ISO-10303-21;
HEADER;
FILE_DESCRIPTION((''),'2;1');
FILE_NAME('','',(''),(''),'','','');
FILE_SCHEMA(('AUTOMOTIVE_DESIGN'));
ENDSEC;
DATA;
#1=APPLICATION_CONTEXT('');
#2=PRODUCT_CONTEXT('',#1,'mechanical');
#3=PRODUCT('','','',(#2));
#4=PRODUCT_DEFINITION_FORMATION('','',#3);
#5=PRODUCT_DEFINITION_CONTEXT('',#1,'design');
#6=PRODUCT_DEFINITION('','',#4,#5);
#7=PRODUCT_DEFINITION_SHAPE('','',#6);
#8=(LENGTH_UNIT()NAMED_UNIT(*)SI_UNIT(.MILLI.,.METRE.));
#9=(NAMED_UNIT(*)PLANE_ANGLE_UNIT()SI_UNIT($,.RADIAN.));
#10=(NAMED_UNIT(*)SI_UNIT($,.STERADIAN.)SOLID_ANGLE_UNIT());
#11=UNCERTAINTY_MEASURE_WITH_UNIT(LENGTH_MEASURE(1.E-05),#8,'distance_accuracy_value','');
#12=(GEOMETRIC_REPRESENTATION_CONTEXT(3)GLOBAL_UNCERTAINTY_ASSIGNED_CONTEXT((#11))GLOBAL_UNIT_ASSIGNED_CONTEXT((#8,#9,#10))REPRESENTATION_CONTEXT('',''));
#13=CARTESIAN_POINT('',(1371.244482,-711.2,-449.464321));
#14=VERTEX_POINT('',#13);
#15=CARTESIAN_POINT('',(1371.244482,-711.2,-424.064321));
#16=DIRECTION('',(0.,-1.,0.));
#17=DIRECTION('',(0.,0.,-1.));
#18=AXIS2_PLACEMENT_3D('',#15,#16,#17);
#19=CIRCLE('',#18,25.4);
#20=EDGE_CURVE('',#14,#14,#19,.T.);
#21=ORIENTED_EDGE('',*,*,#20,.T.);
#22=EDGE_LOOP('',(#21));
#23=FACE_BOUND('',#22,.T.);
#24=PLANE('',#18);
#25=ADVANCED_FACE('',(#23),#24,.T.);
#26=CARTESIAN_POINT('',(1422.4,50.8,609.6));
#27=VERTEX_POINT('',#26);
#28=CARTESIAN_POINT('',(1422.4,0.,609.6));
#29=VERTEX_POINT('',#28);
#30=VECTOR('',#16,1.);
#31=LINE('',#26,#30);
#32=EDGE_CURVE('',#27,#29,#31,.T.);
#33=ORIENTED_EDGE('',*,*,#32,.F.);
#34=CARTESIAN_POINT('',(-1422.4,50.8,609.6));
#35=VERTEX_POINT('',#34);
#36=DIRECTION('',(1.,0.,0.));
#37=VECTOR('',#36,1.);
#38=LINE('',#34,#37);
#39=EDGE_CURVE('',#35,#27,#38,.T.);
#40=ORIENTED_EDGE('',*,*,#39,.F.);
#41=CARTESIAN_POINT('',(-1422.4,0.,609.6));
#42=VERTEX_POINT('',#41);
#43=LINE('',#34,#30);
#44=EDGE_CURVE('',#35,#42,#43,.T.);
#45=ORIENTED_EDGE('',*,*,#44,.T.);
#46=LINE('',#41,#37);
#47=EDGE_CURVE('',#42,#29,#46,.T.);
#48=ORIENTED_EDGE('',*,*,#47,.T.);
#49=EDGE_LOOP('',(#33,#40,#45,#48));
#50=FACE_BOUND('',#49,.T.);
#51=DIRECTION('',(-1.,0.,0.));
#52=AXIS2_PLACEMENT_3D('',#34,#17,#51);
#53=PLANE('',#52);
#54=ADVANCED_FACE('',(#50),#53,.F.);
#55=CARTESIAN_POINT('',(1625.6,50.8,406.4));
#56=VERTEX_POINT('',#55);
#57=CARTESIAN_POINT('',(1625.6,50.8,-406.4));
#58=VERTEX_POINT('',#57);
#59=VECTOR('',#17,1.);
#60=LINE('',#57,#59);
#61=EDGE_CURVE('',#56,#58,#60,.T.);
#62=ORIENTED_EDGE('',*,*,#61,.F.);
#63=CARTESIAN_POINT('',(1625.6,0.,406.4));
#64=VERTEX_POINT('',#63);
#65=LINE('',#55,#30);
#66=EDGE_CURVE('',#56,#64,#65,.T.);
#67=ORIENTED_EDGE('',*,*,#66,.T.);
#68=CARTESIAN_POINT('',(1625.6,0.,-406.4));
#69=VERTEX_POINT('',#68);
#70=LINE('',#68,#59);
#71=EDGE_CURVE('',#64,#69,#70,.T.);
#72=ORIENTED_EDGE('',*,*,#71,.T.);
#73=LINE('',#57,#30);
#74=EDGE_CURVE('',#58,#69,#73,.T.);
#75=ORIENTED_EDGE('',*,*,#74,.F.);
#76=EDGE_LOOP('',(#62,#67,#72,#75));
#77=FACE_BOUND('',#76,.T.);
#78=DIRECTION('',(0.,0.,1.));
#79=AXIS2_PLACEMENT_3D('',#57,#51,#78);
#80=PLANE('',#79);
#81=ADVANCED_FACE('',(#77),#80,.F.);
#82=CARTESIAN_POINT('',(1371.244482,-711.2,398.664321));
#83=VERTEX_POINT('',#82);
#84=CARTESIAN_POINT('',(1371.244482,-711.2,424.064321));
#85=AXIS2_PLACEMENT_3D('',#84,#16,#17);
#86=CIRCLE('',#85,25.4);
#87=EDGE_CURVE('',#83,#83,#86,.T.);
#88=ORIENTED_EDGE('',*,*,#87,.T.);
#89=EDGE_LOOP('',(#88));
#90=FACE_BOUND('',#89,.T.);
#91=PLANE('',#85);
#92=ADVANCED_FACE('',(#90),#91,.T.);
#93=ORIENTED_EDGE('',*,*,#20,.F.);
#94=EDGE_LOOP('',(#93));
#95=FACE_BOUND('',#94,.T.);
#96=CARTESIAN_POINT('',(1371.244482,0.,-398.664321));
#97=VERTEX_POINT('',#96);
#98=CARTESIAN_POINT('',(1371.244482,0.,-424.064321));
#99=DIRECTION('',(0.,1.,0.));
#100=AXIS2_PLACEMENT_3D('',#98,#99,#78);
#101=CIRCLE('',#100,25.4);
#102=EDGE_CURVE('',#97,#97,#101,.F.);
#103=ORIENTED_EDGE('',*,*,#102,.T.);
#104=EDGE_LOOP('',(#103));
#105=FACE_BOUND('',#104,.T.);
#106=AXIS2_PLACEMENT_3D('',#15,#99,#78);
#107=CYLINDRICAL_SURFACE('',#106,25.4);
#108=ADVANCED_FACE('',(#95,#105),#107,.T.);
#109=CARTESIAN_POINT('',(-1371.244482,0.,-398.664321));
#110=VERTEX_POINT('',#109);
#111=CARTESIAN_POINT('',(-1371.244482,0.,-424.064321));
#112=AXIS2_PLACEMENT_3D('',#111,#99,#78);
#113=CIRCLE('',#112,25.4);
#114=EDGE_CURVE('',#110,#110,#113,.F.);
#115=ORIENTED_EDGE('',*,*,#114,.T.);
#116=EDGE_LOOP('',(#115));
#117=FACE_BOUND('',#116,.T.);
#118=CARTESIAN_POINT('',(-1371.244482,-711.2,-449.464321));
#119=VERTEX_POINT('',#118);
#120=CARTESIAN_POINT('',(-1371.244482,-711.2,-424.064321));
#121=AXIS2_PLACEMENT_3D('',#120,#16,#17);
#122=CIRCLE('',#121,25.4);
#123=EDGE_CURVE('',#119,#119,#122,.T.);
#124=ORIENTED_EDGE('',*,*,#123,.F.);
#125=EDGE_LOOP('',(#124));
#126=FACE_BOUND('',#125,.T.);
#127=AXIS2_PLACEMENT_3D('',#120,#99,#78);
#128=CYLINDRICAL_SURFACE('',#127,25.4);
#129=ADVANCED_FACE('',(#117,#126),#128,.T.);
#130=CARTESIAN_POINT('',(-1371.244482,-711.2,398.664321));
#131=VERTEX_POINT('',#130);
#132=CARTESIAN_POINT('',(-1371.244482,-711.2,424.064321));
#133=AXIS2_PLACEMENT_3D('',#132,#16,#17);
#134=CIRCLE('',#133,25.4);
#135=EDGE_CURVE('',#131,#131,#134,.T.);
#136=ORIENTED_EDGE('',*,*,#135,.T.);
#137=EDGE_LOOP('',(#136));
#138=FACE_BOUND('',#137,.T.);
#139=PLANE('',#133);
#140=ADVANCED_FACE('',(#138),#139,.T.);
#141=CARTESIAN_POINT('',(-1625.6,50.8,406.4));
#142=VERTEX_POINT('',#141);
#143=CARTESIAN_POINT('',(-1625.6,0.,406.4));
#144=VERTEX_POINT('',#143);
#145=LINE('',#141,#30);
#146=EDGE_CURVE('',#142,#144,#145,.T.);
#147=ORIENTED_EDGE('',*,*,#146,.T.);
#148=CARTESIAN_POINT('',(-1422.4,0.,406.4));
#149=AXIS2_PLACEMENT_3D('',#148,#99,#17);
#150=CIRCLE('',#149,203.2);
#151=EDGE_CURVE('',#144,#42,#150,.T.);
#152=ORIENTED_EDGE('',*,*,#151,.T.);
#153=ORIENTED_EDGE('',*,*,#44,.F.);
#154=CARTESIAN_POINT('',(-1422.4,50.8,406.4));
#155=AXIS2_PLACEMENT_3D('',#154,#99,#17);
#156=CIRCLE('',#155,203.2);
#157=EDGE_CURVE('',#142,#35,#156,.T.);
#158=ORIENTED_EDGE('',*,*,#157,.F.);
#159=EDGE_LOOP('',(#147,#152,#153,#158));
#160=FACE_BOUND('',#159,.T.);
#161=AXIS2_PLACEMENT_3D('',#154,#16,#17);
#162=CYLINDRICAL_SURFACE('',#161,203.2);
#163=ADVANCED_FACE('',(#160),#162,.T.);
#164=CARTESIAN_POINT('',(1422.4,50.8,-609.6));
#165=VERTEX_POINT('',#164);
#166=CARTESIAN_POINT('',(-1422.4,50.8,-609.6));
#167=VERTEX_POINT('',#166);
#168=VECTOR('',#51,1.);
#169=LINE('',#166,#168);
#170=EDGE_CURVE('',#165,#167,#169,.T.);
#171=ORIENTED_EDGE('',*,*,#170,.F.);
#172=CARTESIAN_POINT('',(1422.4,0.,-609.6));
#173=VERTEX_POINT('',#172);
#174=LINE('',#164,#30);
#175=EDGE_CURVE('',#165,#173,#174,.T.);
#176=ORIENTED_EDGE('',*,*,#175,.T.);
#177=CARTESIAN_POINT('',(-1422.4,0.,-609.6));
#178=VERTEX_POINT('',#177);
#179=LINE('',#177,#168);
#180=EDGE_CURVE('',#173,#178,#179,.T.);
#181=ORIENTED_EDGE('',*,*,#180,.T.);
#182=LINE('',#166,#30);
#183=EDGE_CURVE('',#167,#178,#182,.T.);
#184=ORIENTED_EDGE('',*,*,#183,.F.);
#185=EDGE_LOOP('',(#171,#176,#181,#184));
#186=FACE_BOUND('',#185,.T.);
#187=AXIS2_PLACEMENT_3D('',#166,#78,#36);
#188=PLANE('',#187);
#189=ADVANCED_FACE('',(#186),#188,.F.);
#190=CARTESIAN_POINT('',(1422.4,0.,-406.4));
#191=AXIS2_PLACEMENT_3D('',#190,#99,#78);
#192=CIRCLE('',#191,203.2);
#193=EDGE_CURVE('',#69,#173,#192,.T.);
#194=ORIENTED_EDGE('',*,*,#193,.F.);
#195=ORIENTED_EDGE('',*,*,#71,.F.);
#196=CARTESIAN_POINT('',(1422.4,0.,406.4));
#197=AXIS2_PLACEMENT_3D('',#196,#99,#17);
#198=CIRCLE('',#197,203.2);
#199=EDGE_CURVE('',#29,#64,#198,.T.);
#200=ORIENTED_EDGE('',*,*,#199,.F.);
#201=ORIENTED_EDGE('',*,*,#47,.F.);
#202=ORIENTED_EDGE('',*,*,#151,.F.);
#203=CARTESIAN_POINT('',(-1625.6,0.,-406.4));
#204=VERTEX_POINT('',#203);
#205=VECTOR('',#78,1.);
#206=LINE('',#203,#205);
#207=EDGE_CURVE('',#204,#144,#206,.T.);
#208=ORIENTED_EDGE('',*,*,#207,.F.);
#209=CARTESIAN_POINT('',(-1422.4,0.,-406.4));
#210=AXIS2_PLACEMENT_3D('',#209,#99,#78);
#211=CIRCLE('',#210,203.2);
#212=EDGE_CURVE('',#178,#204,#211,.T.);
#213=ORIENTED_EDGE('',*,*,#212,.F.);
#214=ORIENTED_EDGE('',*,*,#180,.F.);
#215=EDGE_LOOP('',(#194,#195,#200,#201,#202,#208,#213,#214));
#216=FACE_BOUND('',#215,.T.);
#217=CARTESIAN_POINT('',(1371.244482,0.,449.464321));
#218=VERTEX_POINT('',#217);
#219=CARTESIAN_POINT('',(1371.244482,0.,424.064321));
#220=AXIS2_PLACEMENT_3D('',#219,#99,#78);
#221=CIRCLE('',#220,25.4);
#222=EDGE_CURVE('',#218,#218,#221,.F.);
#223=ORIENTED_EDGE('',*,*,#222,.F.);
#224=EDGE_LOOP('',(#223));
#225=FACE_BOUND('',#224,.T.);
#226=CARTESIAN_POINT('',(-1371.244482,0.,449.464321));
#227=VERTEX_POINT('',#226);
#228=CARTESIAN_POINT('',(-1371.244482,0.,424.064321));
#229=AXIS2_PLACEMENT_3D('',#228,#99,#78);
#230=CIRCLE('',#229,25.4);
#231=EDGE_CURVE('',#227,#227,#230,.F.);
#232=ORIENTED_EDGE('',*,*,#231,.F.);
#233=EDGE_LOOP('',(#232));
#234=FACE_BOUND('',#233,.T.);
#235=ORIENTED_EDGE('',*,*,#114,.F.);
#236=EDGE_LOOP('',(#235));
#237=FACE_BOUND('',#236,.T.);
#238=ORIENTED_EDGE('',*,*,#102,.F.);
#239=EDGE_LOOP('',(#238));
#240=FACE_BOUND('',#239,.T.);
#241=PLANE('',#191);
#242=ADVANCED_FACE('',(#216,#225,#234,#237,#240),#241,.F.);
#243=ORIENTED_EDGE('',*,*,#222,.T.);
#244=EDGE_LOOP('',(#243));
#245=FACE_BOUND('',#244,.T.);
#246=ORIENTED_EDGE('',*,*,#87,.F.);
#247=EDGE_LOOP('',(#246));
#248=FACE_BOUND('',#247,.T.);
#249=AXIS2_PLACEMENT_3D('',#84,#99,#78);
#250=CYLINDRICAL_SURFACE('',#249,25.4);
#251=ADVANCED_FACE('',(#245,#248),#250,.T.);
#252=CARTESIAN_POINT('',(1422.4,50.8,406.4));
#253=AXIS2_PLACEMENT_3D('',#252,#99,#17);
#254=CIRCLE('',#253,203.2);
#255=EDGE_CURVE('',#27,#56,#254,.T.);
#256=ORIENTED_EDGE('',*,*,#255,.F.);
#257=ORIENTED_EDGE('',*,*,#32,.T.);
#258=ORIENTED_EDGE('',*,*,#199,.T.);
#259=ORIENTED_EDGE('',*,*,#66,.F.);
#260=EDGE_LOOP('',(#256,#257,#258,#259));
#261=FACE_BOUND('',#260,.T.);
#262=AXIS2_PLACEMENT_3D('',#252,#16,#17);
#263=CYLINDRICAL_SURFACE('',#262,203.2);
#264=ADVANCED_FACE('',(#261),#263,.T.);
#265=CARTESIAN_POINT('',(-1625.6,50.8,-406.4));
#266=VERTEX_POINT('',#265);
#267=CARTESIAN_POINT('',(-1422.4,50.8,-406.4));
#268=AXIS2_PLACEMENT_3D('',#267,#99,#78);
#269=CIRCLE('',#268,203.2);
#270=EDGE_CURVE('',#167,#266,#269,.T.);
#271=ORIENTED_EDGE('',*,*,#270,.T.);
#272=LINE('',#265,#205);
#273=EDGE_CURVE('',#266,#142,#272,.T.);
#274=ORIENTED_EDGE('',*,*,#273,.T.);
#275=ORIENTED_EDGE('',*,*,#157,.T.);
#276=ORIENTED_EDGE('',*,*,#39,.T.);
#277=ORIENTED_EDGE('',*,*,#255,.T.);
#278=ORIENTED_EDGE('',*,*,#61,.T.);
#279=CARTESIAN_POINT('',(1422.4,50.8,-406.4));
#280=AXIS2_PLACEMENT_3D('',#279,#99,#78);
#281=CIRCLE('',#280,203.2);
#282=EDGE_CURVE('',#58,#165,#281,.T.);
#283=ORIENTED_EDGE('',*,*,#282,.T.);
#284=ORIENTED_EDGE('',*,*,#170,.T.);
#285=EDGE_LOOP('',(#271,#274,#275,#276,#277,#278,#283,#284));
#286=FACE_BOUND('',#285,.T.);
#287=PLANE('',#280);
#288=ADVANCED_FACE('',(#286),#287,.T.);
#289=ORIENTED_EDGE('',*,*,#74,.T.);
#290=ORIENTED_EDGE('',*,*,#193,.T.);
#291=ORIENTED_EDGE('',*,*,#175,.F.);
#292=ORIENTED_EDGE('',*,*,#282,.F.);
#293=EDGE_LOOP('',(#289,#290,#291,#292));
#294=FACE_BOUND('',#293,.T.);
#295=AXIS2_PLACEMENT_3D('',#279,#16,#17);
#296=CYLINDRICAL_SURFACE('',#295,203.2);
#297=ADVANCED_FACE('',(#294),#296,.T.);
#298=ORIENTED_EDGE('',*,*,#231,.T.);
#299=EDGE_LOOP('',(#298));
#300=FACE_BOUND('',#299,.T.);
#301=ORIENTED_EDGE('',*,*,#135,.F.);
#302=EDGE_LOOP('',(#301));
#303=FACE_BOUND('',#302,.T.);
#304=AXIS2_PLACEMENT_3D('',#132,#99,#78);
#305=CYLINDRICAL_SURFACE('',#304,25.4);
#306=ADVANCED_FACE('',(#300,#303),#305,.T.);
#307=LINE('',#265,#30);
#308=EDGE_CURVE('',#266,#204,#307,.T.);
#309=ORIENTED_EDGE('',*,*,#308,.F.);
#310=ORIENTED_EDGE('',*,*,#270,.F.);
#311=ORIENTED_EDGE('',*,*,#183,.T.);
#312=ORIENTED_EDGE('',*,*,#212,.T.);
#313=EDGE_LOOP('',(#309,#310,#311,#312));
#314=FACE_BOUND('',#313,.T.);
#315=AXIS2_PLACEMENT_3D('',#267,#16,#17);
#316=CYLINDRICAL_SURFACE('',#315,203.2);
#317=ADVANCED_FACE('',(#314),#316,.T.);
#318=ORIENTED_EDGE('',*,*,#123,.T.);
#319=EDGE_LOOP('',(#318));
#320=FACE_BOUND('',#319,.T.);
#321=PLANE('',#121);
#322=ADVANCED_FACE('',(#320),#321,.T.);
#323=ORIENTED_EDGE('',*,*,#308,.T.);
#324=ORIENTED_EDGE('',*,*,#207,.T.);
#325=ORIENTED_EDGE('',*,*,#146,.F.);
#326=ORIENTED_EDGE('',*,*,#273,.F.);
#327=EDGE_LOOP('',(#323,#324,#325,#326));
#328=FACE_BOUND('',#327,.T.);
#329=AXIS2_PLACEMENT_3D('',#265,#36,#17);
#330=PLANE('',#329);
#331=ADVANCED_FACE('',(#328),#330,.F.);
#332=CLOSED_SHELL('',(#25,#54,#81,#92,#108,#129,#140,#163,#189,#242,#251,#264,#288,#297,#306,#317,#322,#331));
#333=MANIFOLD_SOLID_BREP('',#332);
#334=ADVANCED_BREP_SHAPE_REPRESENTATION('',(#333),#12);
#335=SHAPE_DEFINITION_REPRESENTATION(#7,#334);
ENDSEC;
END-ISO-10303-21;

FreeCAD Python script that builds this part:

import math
import FreeCAD as App
import Part
import Sketcher

V = App.Vector
Q = App.Units.Quantity

doc = App.newDocument("Part")
params = doc.addObject("Spreadsheet::Sheet", "Params")
for row, (alias, value) in enumerate([
    ("sketch1_radius", "8 in"),
    ("sketch1_width", "112 in"),
    ("sketch1_height", "32 in"),
    ("pad1_length", "2 in"),
    ("sketch2_diameter", "2 in"),
    ("pad2_length", "28 in"),
], start=1):
    params.set(f"A{row}", alias)
    params.set(f"B{row}", "=" + value)
    params.setAlias(f"B{row}", alias)

body = doc.addObject("PartDesign::Body", "Body")

# Sketch on XZ plane
sketch1 = body.newObject("Sketcher::SketchObject", "Sketch")
sketch1.AttachmentSupport = (doc.getObject("XZ_Plane"), [""])
sketch1.MapMode = "FlatFace"
sketch1.addGeometry([
    Part.LineSegment(V(1422, -610, 0), V(-1422, -610, 0)),  # 0
    Part.ArcOfCircle(Part.Circle(V(-1422, -406, 0), V(0, 0, 1), 203), math.radians(180), math.radians(270)),  # 1
    Part.LineSegment(V(-1626, -406, 0), V(-1626, 406, 0)),  # 2
    Part.ArcOfCircle(Part.Circle(V(-1422, 406, 0), V(0, 0, 1), 203), math.radians(90), math.radians(180)),  # 3
    Part.LineSegment(V(-1422, 610, 0), V(1422, 610, 0)),  # 4
    Part.ArcOfCircle(Part.Circle(V(1422, 406, 0), V(0, 0, 1), 203), math.radians(0), math.radians(90)),  # 5
    Part.LineSegment(V(1626, 406, 0), V(1626, -406, 0)),  # 6
    Part.ArcOfCircle(Part.Circle(V(1422, -406, 0), V(0, 0, 1), 203), math.radians(-90), math.radians(0)),  # 7
], False)
sketch1.addConstraint([
    Sketcher.Constraint("Tangent", 0, 2, 1, 2),
    Sketcher.Constraint("Tangent", 1, 1, 2, 1),
    Sketcher.Constraint("Tangent", 2, 2, 3, 2),
    Sketcher.Constraint("Tangent", 3, 1, 4, 1),
    Sketcher.Constraint("Tangent", 4, 2, 5, 2),
    Sketcher.Constraint("Tangent", 5, 1, 6, 1),
    Sketcher.Constraint("Tangent", 6, 2, 7, 2),
    Sketcher.Constraint("Tangent", 7, 1, 0, 1),
    Sketcher.Constraint("Horizontal", 0),
    Sketcher.Constraint("Vertical", 2),
    Sketcher.Constraint("Horizontal", 4),
    Sketcher.Constraint("Vertical", 6),
    Sketcher.Constraint("Equal", 1, 3),
    Sketcher.Constraint("Equal", 3, 5),
    Sketcher.Constraint("Equal", 5, 7),
    Sketcher.Constraint("Symmetric", 1, 3, 5, 3, -1, 1),
    Sketcher.Constraint("Radius", 1, Q("8 in")),
    Sketcher.Constraint("DistanceX", 0, 2, 0, 1, Q("112 in")),
    Sketcher.Constraint("DistanceY", 2, 1, 2, 2, Q("32 in")),
])
sketch1.setExpression("Constraints[16]", "Params.sketch1_radius")
sketch1.setExpression("Constraints[17]", "Params.sketch1_width")
sketch1.setExpression("Constraints[18]", "Params.sketch1_height")
pad1 = body.newObject("PartDesign::Pad", "Pad")
pad1.Profile = sketch1
pad1.setExpression("Length", "Params.pad1_length")
pad1.Reversed = True

# Sketch on XZ plane
sketch2 = body.newObject("Sketcher::SketchObject", "Sketch001")
sketch2.AttachmentSupport = (doc.getObject("XZ_Plane"), [""])
sketch2.MapMode = "FlatFace"
sketch2.addGeometry([
    Part.Circle(V(-1371, 424, 0), V(0, 0, 1), 25),
    Part.Circle(V(-1371, -424, 0), V(0, 0, 1), 25),
    Part.Circle(V(1371, -424, 0), V(0, 0, 1), 25),
    Part.Circle(V(1371, 424, 0), V(0, 0, 1), 25),
], False)
sketch2.addConstraint([
    Sketcher.Constraint("Equal", 0, 1),
    Sketcher.Constraint("Equal", 1, 2),
    Sketcher.Constraint("Equal", 2, 3),
    Sketcher.Constraint("Symmetric", 0, 3, 2, 3, -1, 1),
    Sketcher.Constraint("Symmetric", 1, 3, 3, 3, -1, 1),
    Sketcher.Constraint("Symmetric", 1, 3, 2, 3, -2),
    Sketcher.Constraint("Diameter", 0, Q("2 in")),
    Sketcher.Constraint("DistanceX", 0, 3, -1, 1, Q("1371.244482 mm")),
    Sketcher.Constraint("DistanceY", -1, 1, 0, 3, Q("424.064321 mm")),
])
sketch2.setExpression("Constraints[6]", "Params.sketch2_diameter")
pad2 = body.newObject("PartDesign::Pad", "Pad001")
pad2.Profile = sketch2
pad2.setExpression("Length", "Params.pad2_length")

doc.recompute()
